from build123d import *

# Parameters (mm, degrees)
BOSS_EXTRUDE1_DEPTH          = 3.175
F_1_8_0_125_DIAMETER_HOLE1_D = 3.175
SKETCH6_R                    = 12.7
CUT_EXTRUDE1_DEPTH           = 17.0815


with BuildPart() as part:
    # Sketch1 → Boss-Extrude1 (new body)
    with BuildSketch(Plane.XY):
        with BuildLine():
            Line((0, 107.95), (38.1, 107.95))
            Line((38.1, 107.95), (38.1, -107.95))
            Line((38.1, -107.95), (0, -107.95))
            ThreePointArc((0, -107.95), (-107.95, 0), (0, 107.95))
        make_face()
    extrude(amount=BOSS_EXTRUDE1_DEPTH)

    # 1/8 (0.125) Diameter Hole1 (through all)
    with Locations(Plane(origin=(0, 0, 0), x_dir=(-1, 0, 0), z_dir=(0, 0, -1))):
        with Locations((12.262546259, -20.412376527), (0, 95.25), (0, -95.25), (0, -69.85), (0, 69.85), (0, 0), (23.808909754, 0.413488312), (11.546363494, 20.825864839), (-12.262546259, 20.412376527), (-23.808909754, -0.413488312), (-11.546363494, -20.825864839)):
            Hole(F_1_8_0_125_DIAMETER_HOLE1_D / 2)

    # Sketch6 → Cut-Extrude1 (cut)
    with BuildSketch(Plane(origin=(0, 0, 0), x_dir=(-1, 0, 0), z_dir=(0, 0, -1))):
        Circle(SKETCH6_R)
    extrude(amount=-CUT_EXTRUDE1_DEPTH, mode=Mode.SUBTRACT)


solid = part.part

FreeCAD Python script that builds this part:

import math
import FreeCAD as App
import Part
import Sketcher
Q = App.Units.Quantity

doc = App.newDocument("Part")
body = doc.addObject("PartDesign::Body", "Body")

# Sketch on XY plane
sketch1 = body.newObject("Sketcher::SketchObject", "Sketch")
sketch1.AttachmentSupport = (doc.getObject("XY_Plane"), [""])
sketch1.MapMode = "FlatFace"
sketch1.addGeometry(Part.LineSegment(App.Vector(38.1, 107.95, 0), App.Vector(0, 107.95, 0)), False)
sketch1.addGeometry(Part.ArcOfCircle(Part.Circle(App.Vector(0, 0, 0), App.Vector(0, 0, 1), 107.95), math.radians(90), math.radians(270)), False)
sketch1.addGeometry(Part.LineSegment(App.Vector(0, -107.95, 0), App.Vector(38.1, -107.95, 0)), False)
sketch1.addGeometry(Part.LineSegment(App.Vector(38.1, -107.95, 0), App.Vector(38.1, 107.95, 0)), False)
sketch1.addConstraint(Sketcher.Constraint("Tangent", 0, 2, 1, 1))
sketch1.addConstraint(Sketcher.Constraint("Tangent", 1, 2, 2, 1))
sketch1.addConstraint(Sketcher.Constraint("Coincident", 2, 2, 3, 1))
sketch1.addConstraint(Sketcher.Constraint("Coincident", 3, 2, 0, 1))
sketch1.addConstraint(Sketcher.Constraint("Horizontal", 0))
sketch1.addConstraint(Sketcher.Constraint("Horizontal", 2))
sketch1.addConstraint(Sketcher.Constraint("Vertical", 3))
sketch1.addConstraint(Sketcher.Constraint("Coincident", 1, 3, -1, 1))
sketch1.addConstraint(Sketcher.Constraint("Radius", 1, Q("4.25 in")))
sketch1.addConstraint(Sketcher.Constraint("DistanceX", 0, 2, 0, 1, Q("1.5 in")))
pad1 = body.newObject("PartDesign::Pad", "Pad")
pad1.Profile = sketch1
pad1.Length = Q("0.125 in")

# Sketch on XY plane
sketch2 = body.newObject("Sketcher::SketchObject", "Sketch001")
sketch2.AttachmentSupport = (doc.getObject("XY_Plane"), [""])
sketch2.MapMode = "FlatFace"
sketch2.addGeometry(Part.Circle(App.Vector(-12.262546, -20.412377, 0), App.Vector(0, 0, 1), 1.5875), False)
sketch2.addGeometry(Part.Circle(App.Vector(0, 95.25, 0), App.Vector(0, 0, 1), 1.5875), False)
sketch2.addGeometry(Part.Circle(App.Vector(0, -95.25, 0), App.Vector(0, 0, 1), 1.5875), False)
sketch2.addGeometry(Part.Circle(App.Vector(0, -69.85, 0), App.Vector(0, 0, 1), 1.5875), False)
sketch2.addGeometry(Part.Circle(App.Vector(0, 69.85, 0), App.Vector(0, 0, 1), 1.5875), False)
sketch2.addGeometry(Part.Circle(App.Vector(0, 0, 0), App.Vector(0, 0, 1), 1.5875), False)
sketch2.addGeometry(Part.Circle(App.Vector(-23.80891, 0.413488, 0), App.Vector(0, 0, 1), 1.5875), False)
sketch2.addGeometry(Part.Circle(App.Vector(-11.546363, 20.825865, 0), App.Vector(0, 0, 1), 1.5875), False)
sketch2.addGeometry(Part.Circle(App.Vector(12.262546, 20.412377, 0), App.Vector(0, 0, 1), 1.5875), False)
sketch2.addGeometry(Part.Circle(App.Vector(23.80891, -0.413488, 0), App.Vector(0, 0, 1), 1.5875), False)
sketch2.addGeometry(Part.Circle(App.Vector(11.546363, -20.825865, 0), App.Vector(0, 0, 1), 1.5875), False)
sketch2.addConstraint(Sketcher.Constraint("Coincident", 5, 3, -1, 1))
sketch2.addConstraint(Sketcher.Constraint("Equal", 0, 1))
sketch2.addConstraint(Sketcher.Constraint("Equal", 1, 2))
sketch2.addConstraint(Sketcher.Constraint("Equal", 2, 3))
sketch2.addConstraint(Sketcher.Constraint("Equal", 3, 4))
sketch2.addConstraint(Sketcher.Constraint("Equal", 4, 5))
sketch2.addConstraint(Sketcher.Constraint("Equal", 5, 6))
sketch2.addConstraint(Sketcher.Constraint("Equal", 6, 7))
sketch2.addConstraint(Sketcher.Constraint("Equal", 7, 8))
sketch2.addConstraint(Sketcher.Constraint("Equal", 8, 9))
sketch2.addConstraint(Sketcher.Constraint("Equal", 9, 10))
sketch2.addConstraint(Sketcher.Constraint("Symmetric", 1, 3, 2, 3, -1, 1))
sketch2.addConstraint(Sketcher.Constraint("Symmetric", 3, 3, 4, 3, -1, 1))
sketch2.addConstraint(Sketcher.Constraint("Symmetric", 0, 3, 8, 3, -1, 1))
sketch2.addConstraint(Sketcher.Constraint("Symmetric", 6, 3, 9, 3, -1, 1))
sketch2.addConstraint(Sketcher.Constraint("Symmetric", 7, 3, 10, 3, -1, 1))
sketch2.addConstraint(Sketcher.Constraint("PointOnObject", 1, 3, -2))
sketch2.addConstraint(Sketcher.Constraint("PointOnObject", 3, 3, -2))
sketch2.addConstraint(Sketcher.Constraint("Diameter", 0, Q("0.125 in")))
sketch2.addConstraint(Sketcher.Constraint("DistanceY", 2, 3, 3, 3, Q("1 in")))
sketch2.addConstraint(Sketcher.Constraint("DistanceY", 2, 3, 1, 3, Q("7.5 in")))
sketch2.addConstraint(Sketcher.Constraint("DistanceX", 6, 3, -1, 1, 23.80891))
sketch2.addConstraint(Sketcher.Constraint("DistanceY", -1, 1, 6, 3, 0.413488))
sketch2.addConstraint(Sketcher.Constraint("DistanceY", 0, 3, 7, 3, 41.238241))
sketch2.addConstraint(Sketcher.Constraint("DistanceX", 7, 3, 8, 3, 23.80891))
sketch2.addConstraint(Sketcher.Constraint("DistanceY", 8, 3, 7, 3, 0.413488))
sketch2.addConstraint(Sketcher.Constraint("DistanceX", 0, 3, -1, 1, 12.262546))
doc.recompute()
hole = body.newObject("PartDesign::Hole", "Hole")
hole.Profile = sketch2
hole.ThreadType = "None"
hole.Diameter = Q("0.125 in")
hole.DepthType = "ThroughAll"
hole.Reversed = True

# Sketch on XY plane
sketch3 = body.newObject("Sketcher::SketchObject", "Sketch002")
sketch3.AttachmentSupport = (doc.getObject("XY_Plane"), [""])
sketch3.MapMode = "FlatFace"
sketch3.addGeometry(Part.Circle(App.Vector(0, 0, 0), App.Vector(0, 0, 1), 12.7), False)
sketch3.addConstraint(Sketcher.Constraint("Coincident", 0, 3, -1, 1))
sketch3.addConstraint(Sketcher.Constraint("Diameter", 0, Q("1 in")))
pocket1 = body.newObject("PartDesign::Pocket", "Pocket")
pocket1.Profile = sketch3
pocket1.Length = Q("0.6725 in")
pocket1.Reversed = True

doc.recompute()
